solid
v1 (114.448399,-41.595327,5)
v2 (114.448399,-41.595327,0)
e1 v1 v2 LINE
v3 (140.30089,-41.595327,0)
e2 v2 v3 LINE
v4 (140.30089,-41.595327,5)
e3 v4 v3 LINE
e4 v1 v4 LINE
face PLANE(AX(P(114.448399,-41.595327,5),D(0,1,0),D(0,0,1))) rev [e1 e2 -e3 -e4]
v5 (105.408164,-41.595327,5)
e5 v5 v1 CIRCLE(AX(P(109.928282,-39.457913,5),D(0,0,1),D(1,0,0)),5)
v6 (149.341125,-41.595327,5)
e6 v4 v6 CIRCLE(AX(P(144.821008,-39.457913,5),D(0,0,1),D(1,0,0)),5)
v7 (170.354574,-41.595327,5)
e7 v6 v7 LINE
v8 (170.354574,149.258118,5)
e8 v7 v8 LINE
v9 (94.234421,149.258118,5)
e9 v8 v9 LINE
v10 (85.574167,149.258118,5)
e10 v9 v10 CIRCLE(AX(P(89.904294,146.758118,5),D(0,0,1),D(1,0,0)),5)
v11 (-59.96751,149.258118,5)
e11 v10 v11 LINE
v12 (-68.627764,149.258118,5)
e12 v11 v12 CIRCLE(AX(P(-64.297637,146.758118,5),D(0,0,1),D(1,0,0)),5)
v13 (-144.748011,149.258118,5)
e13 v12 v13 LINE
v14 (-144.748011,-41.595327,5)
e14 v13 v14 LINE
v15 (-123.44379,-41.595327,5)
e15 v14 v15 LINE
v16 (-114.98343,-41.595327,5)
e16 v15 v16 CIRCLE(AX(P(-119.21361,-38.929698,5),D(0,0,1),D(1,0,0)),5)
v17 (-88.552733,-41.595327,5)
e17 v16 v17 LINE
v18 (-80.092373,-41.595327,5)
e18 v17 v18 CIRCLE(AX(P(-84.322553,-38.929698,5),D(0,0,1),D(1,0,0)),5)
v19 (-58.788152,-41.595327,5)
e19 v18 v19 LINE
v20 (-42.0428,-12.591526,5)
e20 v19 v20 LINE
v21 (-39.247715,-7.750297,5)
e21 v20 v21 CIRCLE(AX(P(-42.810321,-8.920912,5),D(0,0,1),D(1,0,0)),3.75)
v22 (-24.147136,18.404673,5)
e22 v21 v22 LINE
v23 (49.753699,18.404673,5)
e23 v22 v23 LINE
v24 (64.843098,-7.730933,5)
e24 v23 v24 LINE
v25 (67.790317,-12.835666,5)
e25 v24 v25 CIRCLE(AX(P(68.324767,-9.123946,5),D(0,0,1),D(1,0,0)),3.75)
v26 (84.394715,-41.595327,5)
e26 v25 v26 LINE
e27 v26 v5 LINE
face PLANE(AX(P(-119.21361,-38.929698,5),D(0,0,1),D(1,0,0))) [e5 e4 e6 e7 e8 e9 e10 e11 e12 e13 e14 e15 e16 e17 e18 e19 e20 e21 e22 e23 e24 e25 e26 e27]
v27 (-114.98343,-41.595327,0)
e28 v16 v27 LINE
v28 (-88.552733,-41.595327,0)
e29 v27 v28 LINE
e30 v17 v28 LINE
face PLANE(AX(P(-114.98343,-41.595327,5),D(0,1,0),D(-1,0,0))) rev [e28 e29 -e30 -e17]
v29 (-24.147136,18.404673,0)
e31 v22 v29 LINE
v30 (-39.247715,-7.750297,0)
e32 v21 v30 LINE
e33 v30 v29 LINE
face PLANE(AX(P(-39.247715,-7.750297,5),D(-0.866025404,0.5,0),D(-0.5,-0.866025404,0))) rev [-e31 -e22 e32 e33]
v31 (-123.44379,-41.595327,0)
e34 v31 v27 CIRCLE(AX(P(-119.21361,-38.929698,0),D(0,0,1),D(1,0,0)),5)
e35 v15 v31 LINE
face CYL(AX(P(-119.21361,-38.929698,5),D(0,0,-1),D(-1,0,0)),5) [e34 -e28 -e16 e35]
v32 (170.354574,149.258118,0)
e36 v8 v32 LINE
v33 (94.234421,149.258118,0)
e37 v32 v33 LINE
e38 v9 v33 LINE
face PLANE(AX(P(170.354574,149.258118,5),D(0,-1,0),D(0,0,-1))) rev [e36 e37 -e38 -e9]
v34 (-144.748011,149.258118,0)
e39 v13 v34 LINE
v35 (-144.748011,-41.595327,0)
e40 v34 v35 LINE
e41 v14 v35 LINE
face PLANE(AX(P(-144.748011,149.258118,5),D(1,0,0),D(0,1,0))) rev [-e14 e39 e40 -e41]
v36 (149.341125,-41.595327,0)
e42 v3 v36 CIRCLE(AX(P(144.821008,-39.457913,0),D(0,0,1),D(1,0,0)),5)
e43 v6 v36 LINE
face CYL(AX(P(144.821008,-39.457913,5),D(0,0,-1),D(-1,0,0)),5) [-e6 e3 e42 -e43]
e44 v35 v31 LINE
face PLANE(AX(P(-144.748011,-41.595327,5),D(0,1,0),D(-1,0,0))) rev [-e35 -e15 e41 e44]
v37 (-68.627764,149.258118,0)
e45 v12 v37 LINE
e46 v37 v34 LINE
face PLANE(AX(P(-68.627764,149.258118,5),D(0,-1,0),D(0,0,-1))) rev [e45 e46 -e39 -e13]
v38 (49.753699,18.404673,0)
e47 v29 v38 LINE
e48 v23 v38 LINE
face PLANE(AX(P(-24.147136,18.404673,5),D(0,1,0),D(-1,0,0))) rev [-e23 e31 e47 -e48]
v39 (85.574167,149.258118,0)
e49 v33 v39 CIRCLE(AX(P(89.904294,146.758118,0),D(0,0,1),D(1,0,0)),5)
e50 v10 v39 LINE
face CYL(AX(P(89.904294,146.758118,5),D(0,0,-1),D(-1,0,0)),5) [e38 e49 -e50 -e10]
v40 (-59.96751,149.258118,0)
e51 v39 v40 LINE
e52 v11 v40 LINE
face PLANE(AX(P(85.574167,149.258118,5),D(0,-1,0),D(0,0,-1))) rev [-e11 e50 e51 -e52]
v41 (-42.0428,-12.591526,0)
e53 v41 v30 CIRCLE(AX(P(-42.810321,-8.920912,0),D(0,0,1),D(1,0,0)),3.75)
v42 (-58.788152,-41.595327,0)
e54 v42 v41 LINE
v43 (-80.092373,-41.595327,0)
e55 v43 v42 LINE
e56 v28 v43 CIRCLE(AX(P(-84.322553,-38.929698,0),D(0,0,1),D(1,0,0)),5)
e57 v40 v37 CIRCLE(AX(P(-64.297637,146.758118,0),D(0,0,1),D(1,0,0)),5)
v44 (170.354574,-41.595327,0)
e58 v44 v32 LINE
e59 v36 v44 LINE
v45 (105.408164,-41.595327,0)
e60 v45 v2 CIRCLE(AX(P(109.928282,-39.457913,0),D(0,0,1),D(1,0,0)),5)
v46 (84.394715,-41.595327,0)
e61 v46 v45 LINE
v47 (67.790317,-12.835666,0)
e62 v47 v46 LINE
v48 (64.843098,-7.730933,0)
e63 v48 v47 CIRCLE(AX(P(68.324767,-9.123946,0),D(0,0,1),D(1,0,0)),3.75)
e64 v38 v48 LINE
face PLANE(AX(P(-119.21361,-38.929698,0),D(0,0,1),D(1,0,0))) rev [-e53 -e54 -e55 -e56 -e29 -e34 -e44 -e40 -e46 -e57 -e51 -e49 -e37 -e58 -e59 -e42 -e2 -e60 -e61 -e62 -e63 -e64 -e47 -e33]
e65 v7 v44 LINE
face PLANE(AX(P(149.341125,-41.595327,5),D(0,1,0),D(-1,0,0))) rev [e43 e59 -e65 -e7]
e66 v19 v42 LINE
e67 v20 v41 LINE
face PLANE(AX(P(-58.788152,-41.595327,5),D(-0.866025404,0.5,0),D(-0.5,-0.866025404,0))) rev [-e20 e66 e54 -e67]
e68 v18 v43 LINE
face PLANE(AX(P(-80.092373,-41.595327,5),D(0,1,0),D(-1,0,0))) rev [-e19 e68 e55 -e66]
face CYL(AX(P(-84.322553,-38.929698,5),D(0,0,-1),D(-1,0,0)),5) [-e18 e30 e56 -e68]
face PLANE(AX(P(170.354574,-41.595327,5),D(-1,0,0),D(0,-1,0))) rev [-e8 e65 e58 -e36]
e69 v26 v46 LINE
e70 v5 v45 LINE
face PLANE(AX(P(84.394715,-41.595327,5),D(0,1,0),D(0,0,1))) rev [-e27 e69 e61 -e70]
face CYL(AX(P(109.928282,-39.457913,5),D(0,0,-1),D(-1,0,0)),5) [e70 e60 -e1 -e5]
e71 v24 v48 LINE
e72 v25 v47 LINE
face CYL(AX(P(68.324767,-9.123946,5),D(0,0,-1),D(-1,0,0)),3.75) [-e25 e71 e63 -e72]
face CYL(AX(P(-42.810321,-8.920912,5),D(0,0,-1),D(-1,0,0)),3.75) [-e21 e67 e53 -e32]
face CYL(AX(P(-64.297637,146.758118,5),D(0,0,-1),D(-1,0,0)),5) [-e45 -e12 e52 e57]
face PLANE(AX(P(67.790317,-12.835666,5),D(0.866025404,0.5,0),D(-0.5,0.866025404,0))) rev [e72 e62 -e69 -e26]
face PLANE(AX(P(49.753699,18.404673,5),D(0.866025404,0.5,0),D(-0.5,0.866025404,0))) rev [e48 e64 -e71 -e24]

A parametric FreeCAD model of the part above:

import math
import FreeCAD as App
import Part
import Sketcher

V = App.Vector
Q = App.Units.Quantity

doc = App.newDocument("Part")
body = doc.addObject("PartDesign::Body", "Body")

# Sketch on XY plane
sketch1 = doc.addObject("Sketcher::SketchObject", "Sketch")
body.addObject(sketch1)
sketch1.AttachmentSupport = (doc.XY_Plane, [""])
sketch1.MapMode = "FlatFace"
sketch1.addGeometry(Part.LineSegment(V(-114.98343, -41.595327, 0), V(-88.552733, -41.595327, 0)), False)
sketch1.addGeometry(Part.ArcOfCircle(Part.Circle(V(-84.322553, -38.929698, 0), V(0, 0, 1), 5), math.radians(-147.783113), math.radians(-32.216887)), False)
sketch1.addGeometry(Part.LineSegment(V(-80.092373, -41.595327, 0), V(-58.788152, -41.595327, 0)), False)
sketch1.addGeometry(Part.LineSegment(V(-58.788152, -41.595327, 0), V(-42.0428, -12.591526, 0)), False)
sketch1.addGeometry(Part.ArcOfCircle(Part.Circle(V(-42.810321, -8.920912, 0), V(0, 0, 1), 3.75), math.radians(-78.189685), math.radians(18.189685)), False)
sketch1.addGeometry(Part.LineSegment(V(-39.247715, -7.750297, 0), V(-24.147136, 18.404673, 0)), False)
sketch1.addGeometry(Part.LineSegment(V(-24.147136, 18.404673, 0), V(49.753699, 18.404673, 0)), False)
sketch1.addGeometry(Part.LineSegment(V(49.753699, 18.404673, 0), V(64.843098, -7.730933, 0)), False)
sketch1.addGeometry(Part.ArcOfCircle(Part.Circle(V(68.324767, -9.123946, 0), V(0, 0, 1), 3.75), math.radians(158.193688), math.radians(261.806312)), False)
sketch1.addGeometry(Part.LineSegment(V(67.790317, -12.835666, 0), V(84.394715, -41.595327, 0)), False)
sketch1.addGeometry(Part.LineSegment(V(84.394715, -41.595327, 0), V(105.408164, -41.595327, 0)), False)
sketch1.addGeometry(Part.ArcOfCircle(Part.Circle(V(109.928282, -39.457913, 0), V(0, 0, 1), 5), math.radians(-154.692087), math.radians(-25.307913)), False)
sketch1.addGeometry(Part.LineSegment(V(114.448399, -41.595327, 0), V(140.30089, -41.595327, 0)), False)
sketch1.addGeometry(Part.ArcOfCircle(Part.Circle(V(144.821008, -39.457913, 0), V(0, 0, 1), 5), math.radians(-154.692087), math.radians(-25.307913)), False)
sketch1.addGeometry(Part.LineSegment(V(149.341125, -41.595327, 0), V(170.354574, -41.595327, 0)), False)
sketch1.addGeometry(Part.LineSegment(V(170.354574, -41.595327, 0), V(170.354574, 149.258118, 0)), False)
sketch1.addGeometry(Part.LineSegment(V(170.354574, 149.258118, 0), V(94.234421, 149.258118, 0)), False)
sketch1.addGeometry(Part.ArcOfCircle(Part.Circle(V(89.904294, 146.758118, 0), V(0, 0, 1), 5), math.radians(30), math.radians(150)), False)
sketch1.addGeometry(Part.LineSegment(V(85.574167, 149.258118, 0), V(-59.96751, 149.258118, 0)), False)
sketch1.addGeometry(Part.ArcOfCircle(Part.Circle(V(-64.297637, 146.758118, 0), V(0, 0, 1), 5), math.radians(30), math.radians(150)), False)
sketch1.addGeometry(Part.LineSegment(V(-68.627764, 149.258118, 0), V(-144.748011, 149.258118, 0)), False)
sketch1.addGeometry(Part.LineSegment(V(-144.748011, 149.258118, 0), V(-144.748011, -41.595327, 0)), False)
sketch1.addGeometry(Part.LineSegment(V(-144.748011, -41.595327, 0), V(-123.44379, -41.595327, 0)), False)
sketch1.addGeometry(Part.ArcOfCircle(Part.Circle(V(-119.21361, -38.929698, 0), V(0, 0, 1), 5), math.radians(-147.783113), math.radians(-32.216887)), False)
sketch1.addConstraint(Sketcher.Constraint("Coincident", 0, 2, 1, 1))
sketch1.addConstraint(Sketcher.Constraint("Coincident", 1, 2, 2, 1))
sketch1.addConstraint(Sketcher.Constraint("Coincident", 2, 2, 3, 1))
sketch1.addConstraint(Sketcher.Constraint("Coincident", 3, 2, 4, 1))
sketch1.addConstraint(Sketcher.Constraint("Coincident", 4, 2, 5, 1))
sketch1.addConstraint(Sketcher.Constraint("Coincident", 5, 2, 6, 1))
sketch1.addConstraint(Sketcher.Constraint("Coincident", 6, 2, 7, 1))
sketch1.addConstraint(Sketcher.Constraint("Coincident", 7, 2, 8, 1))
sketch1.addConstraint(Sketcher.Constraint("Coincident", 8, 2, 9, 1))
sketch1.addConstraint(Sketcher.Constraint("Coincident", 9, 2, 10, 1))
sketch1.addConstraint(Sketcher.Constraint("Coincident", 10, 2, 11, 1))
sketch1.addConstraint(Sketcher.Constraint("Coincident", 11, 2, 12, 1))
sketch1.addConstraint(Sketcher.Constraint("Coincident", 12, 2, 13, 1))
sketch1.addConstraint(Sketcher.Constraint("Coincident", 13, 2, 14, 1))
sketch1.addConstraint(Sketcher.Constraint("Coincident", 14, 2, 15, 1))
sketch1.addConstraint(Sketcher.Constraint("Coincident", 15, 2, 16, 1))
sketch1.addConstraint(Sketcher.Constraint("Coincident", 16, 2, 17, 1))
sketch1.addConstraint(Sketcher.Constraint("Coincident", 17, 2, 18, 1))
sketch1.addConstraint(Sketcher.Constraint("Coincident", 18, 2, 19, 1))
sketch1.addConstraint(Sketcher.Constraint("Coincident", 19, 2, 20, 1))
sketch1.addConstraint(Sketcher.Constraint("Coincident", 20, 2, 21, 1))
sketch1.addConstraint(Sketcher.Constraint("Coincident", 21, 2, 22, 1))
sketch1.addConstraint(Sketcher.Constraint("Coincident", 22, 2, 23, 1))
sketch1.addConstraint(Sketcher.Constraint("Coincident", 23, 2, 0, 1))
sketch1.addConstraint(Sketcher.Constraint("Horizontal", 0))
sketch1.addConstraint(Sketcher.Constraint("Horizontal", 2))
sketch1.addConstraint(Sketcher.Constraint("Horizontal", 6))
sketch1.addConstraint(Sketcher.Constraint("Horizontal", 10))
sketch1.addConstraint(Sketcher.Constraint("Horizontal", 12))
sketch1.addConstraint(Sketcher.Constraint("Horizontal", 14))
sketch1.addConstraint(Sketcher.Constraint("Vertical", 15))
sketch1.addConstraint(Sketcher.Constraint("Horizontal", 16))
sketch1.addConstraint(Sketcher.Constraint("Horizontal", 18))
sketch1.addConstraint(Sketcher.Constraint("Horizontal", 20))
sketch1.addConstraint(Sketcher.Constraint("Vertical", 21))
sketch1.addConstraint(Sketcher.Constraint("Horizontal", 22))
sketch1.addConstraint(Sketcher.Constraint("Equal", 4, 8))
sketch1.addConstraint(Sketcher.Constraint("Equal", 1, 11))
sketch1.addConstraint(Sketcher.Constraint("Equal", 11, 13))
sketch1.addConstraint(Sketcher.Constraint("Equal", 13, 17))
sketch1.addConstraint(Sketcher.Constraint("Equal", 17, 19))
sketch1.addConstraint(Sketcher.Constraint("Equal", 19, 23))
sketch1.addConstraint(Sketcher.Constraint("Parallel", 3, 5))
sketch1.addConstraint(Sketcher.Constraint("Parallel", 7, 9))
sketch1.addConstraint(Sketcher.Constraint("Horizontal", 11, 3, 13, 3))
sketch1.addConstraint(Sketcher.Constraint("Horizontal", 17, 3, 19, 3))
sketch1.addConstraint(Sketcher.Constraint("Horizontal", 1, 3, 23, 3))
sketch1.addConstraint(Sketcher.Constraint("Horizontal", 0, 2, 1, 2))
sketch1.addConstraint(Sketcher.Constraint("Horizontal", 2, 2, 9, 2))
sketch1.addConstraint(Sketcher.Constraint("Horizontal", 10, 2, 11, 2))
sketch1.addConstraint(Sketcher.Constraint("Horizontal", 12, 2, 13, 2))
sketch1.addConstraint(Sketcher.Constraint("Horizontal", 16, 2, 17, 2))
sketch1.addConstraint(Sketcher.Constraint("Horizontal", 18, 2, 19, 2))
sketch1.addConstraint(Sketcher.Constraint("Horizontal", 14, 2, 21, 2))
sketch1.addConstraint(Sketcher.Constraint("Equal", 10, 14))
sketch1.addConstraint(Sketcher.Constraint("Equal", 2, 22))
sketch1.addConstraint(Sketcher.Constraint("Radius", 1, Q("5 mm")))
sketch1.addConstraint(Sketcher.Constraint("Angle", 3, Q("60 deg")))
sketch1.addConstraint(Sketcher.Constraint("Angle", 7, Q("-60 deg")))
sketch1.addConstraint(Sketcher.Constraint("Radius", 4, Q("3.75 mm")))
sketch1.addConstraint(Sketcher.Constraint("DistanceY", 2, 2, 5, 2, Q("60 mm")))
sketch1.addConstraint(Sketcher.Constraint("DistanceY", 17, 3, 15, 2, Q("2.5 mm")))
sketch1.addConstraint(Sketcher.Constraint("DistanceY", 11, 3, 4, 3, Q("30.537001 mm")))
sketch1.addConstraint(Sketcher.Constraint("Distance", 7, Q("30.178799 mm")))
sketch1.addConstraint(Sketcher.Constraint("DistanceX", 2, 1, 2, 2, Q("21.304221 mm")))
sketch1.addConstraint(Sketcher.Constraint("DistanceX", 10, 1, 10, 2, Q("21.013449 mm")))
sketch1.addConstraint(Sketcher.Constraint("DistanceX", 12, 1, 12, 2, Q("25.852491 mm")))
sketch1.addConstraint(Sketcher.Constraint("DistanceY", 1, 3, -1, 1, Q("38.929698 mm")))
sketch1.addConstraint(Sketcher.Constraint("DistanceX", 3, 2, -1, 1, Q("42.0428 mm")))
sketch1.addConstraint(Sketcher.Constraint("DistanceX", -1, 1, 6, 2, Q("49.753699 mm")))
sketch1.addConstraint(Sketcher.Constraint("DistanceX", -1, 1, 11, 2, Q("114.448399 mm")))
sketch1.addConstraint(Sketcher.Constraint("DistanceX", 0, 2, 8, 3, Q("156.8775 mm")))
sketch1.addConstraint(Sketcher.Constraint("DistanceX", 1, 3, 2, 2, Q("25.534401 mm")))
sketch1.addConstraint(Sketcher.Constraint("DistanceY", 2, 2, 3, 2, Q("29.0038 mm")))
sketch1.addConstraint(Sketcher.Constraint("DistanceY", 1, 3, 4, 2, Q("31.179401 mm")))
sketch1.addConstraint(Sketcher.Constraint("DistanceX", 20, 2, 18, 2, Q("84.780501 mm")))
sketch1.addConstraint(Sketcher.Constraint("DistanceX", 0, 1, 0, 2, Q("26.430696 mm")))
sketch1.addConstraint(Sketcher.Constraint("DistanceX", 6, 1, 6, 2, Q("73.900834 mm")))
sketch1.addConstraint(Sketcher.Constraint("DistanceX", 16, 2, 16, 1, Q("76.120153 mm")))
sketch1.addConstraint(Sketcher.Constraint("DistanceY", 15, 1, 15, 2, Q("190.853444 mm")))
pad1 = doc.addObject("PartDesign::Pad", "Pad")
body.addObject(pad1)
pad1.Profile = sketch1
pad1.Length = 5

doc.recompute()
